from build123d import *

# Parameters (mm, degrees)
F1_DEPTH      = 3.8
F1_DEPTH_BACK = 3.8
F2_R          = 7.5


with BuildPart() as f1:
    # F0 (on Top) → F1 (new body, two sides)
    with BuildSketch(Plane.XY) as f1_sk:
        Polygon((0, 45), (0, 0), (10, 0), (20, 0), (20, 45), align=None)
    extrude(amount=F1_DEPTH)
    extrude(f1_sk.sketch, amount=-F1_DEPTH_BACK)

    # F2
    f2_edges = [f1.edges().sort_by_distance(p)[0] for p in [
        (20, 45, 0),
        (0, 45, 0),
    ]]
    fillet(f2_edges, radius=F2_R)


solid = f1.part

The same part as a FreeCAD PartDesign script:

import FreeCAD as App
import Part
import Sketcher
from FreeCAD import Vector
Q = App.Units.Quantity


def edges_at(feature, points):
    """Names of the edges that pass closest to the given points."""
    edges = feature.Shape.Edges
    near = lambda p: min(range(len(edges)), key=lambda i: edges[i].distToShape(Part.Vertex(*p))[0])
    return sorted({f"Edge{near(p) + 1}" for p in points})


def add_polygon(sketch, points):
    """Adds a closed chain of lines whose ends are joined by coincident constraints."""
    first, n = sketch.GeometryCount, len(points)
    for a, b in zip(points, points[1:] + points[:1]):
        sketch.addGeometry(Part.LineSegment(App.Vector(*a, 0), App.Vector(*b, 0)), False)
    for i in range(n):
        sketch.addConstraint(Sketcher.Constraint("Coincident", first + i, 2, first + (i + 1) % n, 1))

doc = App.newDocument("Part")
body = doc.addObject("PartDesign::Body", "Body")

sketch1 = body.newObject("Sketcher::SketchObject", "Sketch")
sketch1.AttachmentSupport = (doc.getObject("XY_Plane"), [""])
sketch1.MapMode = "FlatFace"
add_polygon(sketch1, [(0, 45), (0, 0), (20, 0), (20, 45)])
sketch1.addConstraint(Sketcher.Constraint("Vertical", 0))
sketch1.addConstraint(Sketcher.Constraint("Horizontal", 1))
sketch1.addConstraint(Sketcher.Constraint("Vertical", 2))
sketch1.addConstraint(Sketcher.Constraint("Horizontal", 3))
sketch1.addConstraint(Sketcher.Constraint("Coincident", 0, 2, -1, 1))
sketch1.addConstraint(Sketcher.Constraint("DistanceX", 1, 1, 1, 2, Q("20 mm")))
sketch1.addConstraint(Sketcher.Constraint("DistanceY", 0, 2, 0, 1, Q("45 mm")))
pad1 = body.newObject("PartDesign::Pad", "Pad")
pad1.Profile = sketch1
pad1.Type = "TwoLengths"
pad1.Length = 3.8
pad1.Length2 = 3.8
doc.recompute()

fillet = body.newObject("PartDesign::Fillet", "Fillet")
fillet.Base = (pad1, edges_at(pad1, [(20, 45, 0), (0, 45, 0)]))
fillet.Radius = 7.5

doc.recompute()
